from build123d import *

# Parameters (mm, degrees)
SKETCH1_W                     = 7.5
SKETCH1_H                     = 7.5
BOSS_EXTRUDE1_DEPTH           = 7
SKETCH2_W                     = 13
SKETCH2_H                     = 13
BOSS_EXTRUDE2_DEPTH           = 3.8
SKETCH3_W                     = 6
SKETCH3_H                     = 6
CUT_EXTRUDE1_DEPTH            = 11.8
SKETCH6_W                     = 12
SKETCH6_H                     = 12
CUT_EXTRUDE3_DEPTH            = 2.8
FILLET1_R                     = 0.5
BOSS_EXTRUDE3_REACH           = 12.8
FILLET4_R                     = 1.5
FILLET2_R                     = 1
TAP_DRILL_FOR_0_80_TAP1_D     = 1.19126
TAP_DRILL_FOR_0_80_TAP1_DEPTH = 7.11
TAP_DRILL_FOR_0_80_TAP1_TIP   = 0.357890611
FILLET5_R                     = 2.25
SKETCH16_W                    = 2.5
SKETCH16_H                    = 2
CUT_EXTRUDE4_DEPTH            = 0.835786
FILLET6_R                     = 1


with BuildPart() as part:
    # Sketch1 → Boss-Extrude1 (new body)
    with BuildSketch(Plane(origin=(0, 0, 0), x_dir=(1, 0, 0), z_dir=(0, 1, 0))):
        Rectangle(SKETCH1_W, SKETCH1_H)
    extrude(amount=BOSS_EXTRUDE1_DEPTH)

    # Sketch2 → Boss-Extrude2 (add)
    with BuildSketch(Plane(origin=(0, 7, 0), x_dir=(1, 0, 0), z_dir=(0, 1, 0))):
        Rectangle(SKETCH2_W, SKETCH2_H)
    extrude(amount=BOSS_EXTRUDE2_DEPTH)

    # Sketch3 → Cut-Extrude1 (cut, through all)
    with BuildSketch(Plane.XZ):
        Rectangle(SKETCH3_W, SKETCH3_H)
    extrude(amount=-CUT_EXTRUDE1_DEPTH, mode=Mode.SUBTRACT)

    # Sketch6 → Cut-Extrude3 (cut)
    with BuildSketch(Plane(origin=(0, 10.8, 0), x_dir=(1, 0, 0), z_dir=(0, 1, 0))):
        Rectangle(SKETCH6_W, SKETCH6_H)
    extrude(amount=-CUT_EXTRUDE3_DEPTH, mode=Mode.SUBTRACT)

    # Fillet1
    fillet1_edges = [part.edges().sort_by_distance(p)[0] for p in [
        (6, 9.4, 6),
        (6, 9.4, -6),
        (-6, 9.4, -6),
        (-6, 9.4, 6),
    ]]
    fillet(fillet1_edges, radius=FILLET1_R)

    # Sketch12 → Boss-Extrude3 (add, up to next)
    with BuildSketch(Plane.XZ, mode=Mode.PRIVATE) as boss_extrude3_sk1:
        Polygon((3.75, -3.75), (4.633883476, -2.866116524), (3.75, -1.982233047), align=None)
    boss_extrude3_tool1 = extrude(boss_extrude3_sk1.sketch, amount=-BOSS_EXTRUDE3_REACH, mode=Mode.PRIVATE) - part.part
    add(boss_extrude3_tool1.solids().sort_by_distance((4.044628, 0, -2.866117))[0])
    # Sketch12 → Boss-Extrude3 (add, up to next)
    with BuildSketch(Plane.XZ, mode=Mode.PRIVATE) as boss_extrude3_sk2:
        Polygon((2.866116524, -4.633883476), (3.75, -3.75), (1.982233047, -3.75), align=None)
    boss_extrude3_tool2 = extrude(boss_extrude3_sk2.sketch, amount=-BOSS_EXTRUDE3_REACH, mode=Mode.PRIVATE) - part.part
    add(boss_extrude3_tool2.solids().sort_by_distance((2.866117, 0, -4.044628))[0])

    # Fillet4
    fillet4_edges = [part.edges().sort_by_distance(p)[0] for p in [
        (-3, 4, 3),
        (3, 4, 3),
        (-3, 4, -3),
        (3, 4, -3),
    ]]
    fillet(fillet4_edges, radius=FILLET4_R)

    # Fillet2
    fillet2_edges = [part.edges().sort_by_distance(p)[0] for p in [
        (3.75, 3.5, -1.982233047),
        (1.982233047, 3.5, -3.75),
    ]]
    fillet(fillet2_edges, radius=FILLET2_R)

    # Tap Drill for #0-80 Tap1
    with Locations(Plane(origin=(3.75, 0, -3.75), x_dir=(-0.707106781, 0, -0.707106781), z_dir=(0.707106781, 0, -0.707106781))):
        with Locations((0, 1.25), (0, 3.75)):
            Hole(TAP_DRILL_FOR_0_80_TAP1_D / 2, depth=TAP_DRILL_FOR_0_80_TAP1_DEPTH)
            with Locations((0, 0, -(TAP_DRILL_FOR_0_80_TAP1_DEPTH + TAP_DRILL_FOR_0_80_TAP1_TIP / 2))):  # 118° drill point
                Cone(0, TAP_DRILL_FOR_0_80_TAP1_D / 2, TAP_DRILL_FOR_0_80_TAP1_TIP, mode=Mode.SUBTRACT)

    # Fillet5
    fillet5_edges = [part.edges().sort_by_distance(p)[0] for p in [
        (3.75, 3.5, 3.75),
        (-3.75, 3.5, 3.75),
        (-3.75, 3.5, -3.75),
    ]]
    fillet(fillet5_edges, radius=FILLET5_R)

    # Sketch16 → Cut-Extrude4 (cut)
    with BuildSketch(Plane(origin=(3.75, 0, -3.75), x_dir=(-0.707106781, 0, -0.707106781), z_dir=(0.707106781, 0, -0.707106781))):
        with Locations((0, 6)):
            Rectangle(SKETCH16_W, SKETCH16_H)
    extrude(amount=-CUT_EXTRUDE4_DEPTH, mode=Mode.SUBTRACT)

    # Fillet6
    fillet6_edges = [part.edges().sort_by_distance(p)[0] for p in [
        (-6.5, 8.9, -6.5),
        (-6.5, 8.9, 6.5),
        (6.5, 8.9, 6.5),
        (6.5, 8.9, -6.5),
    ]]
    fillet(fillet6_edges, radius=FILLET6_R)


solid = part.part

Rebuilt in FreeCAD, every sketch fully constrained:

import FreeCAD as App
import Part
import Sketcher
from FreeCAD import Vector


def edges_at(feature, points):
    """Names of the edges that pass closest to the given points."""
    edges = feature.Shape.Edges
    near = lambda p: min(range(len(edges)), key=lambda i: edges[i].distToShape(Part.Vertex(*p))[0])
    return sorted({f"Edge{near(p) + 1}" for p in points})


def add_polygon(sketch, points):
    """Adds a closed chain of lines whose ends are joined by coincident constraints."""
    first, n = sketch.GeometryCount, len(points)
    for a, b in zip(points, points[1:] + points[:1]):
        sketch.addGeometry(Part.LineSegment(App.Vector(*a, 0), App.Vector(*b, 0)), False)
    for i in range(n):
        sketch.addConstraint(Sketcher.Constraint("Coincident", first + i, 2, first + (i + 1) % n, 1))

doc = App.newDocument("Part")
params = doc.addObject("Spreadsheet::Sheet", "Params")
for row, (alias, value) in enumerate([
    ("sketch1_width", "7.5 mm"),
    ("pad1_length", "7 mm"),
    ("sketch2_width", "13 mm"),
    ("pad2_length", "3.8 mm"),
    ("sketch3_width", "6 mm"),
    ("sketch4_width", "12 mm"),
    ("pocket2_length", "2.8 mm"),
    ("fillet_radius", "0.5 mm"),
    ("sketch5_length", "1.25 mm"),
    ("sketch6_length", "1.25 mm"),
    ("fillet2_radius", "1.5 mm"),
    ("fillet3_radius", "1 mm"),
    ("hole_diameter", "1.19126 mm"),
    ("hole_depth", "7.11 mm"),
    ("fillet4_radius", "2.25 mm"),
    ("sketch8_height", "2 mm"),
    ("sketch8_width", "2.5 mm"),
    ("pocket3_length", "0.835786 mm"),
    ("fillet5_radius", "1 mm"),
], start=1):
    params.set(f"A{row}", alias)
    params.set(f"B{row}", "=" + value)
    params.setAlias(f"B{row}", alias)

body = doc.addObject("PartDesign::Body", "Body")

sketch1 = doc.addObject("Sketcher::SketchObject", "Sketch")
body.addObject(sketch1)
sketch1.AttachmentSupport = (doc.XZ_Plane, [""])
sketch1.MapMode = "FlatFace"
add_polygon(sketch1, [(-3.75, -3.75), (-3.75, 3.75), (3.75, 3.75), (3.75, -3.75)])
sketch1.addConstraint([
    Sketcher.Constraint("Vertical", 0),
    Sketcher.Constraint("Horizontal", 1),
    Sketcher.Constraint("Vertical", 2),
    Sketcher.Constraint("Horizontal", 3),
    Sketcher.Constraint("Symmetric", 0, 2, 2, 2, -1, 1),
    Sketcher.Constraint("Equal", 3, 0),
    Sketcher.Constraint("DistanceX", 1, 1, 1, 2, 7.5),
])
sketch1.setExpression("Constraints[10]", "Params.sketch1_width")
pad1 = doc.addObject("PartDesign::Pad", "Pad")
body.addObject(pad1)
pad1.Profile = sketch1
pad1.setExpression("Length", "Params.pad1_length")
pad1.Reversed = True

sketch2 = doc.addObject("Sketcher::SketchObject", "Sketch001")
body.addObject(sketch2)
sketch2.AttachmentSupport = (doc.XZ_Plane, [""])
sketch2.MapMode = "FlatFace"
sketch2.AttachmentOffset = App.Placement(Vector(0, 0, -7), App.Rotation())
add_polygon(sketch2, [(-6.5, -6.5), (-6.5, 6.5), (6.5, 6.5), (6.5, -6.5)])
sketch2.addConstraint([
    Sketcher.Constraint("Vertical", 0),
    Sketcher.Constraint("Horizontal", 1),
    Sketcher.Constraint("Vertical", 2),
    Sketcher.Constraint("Horizontal", 3),
    Sketcher.Constraint("Symmetric", 0, 2, 2, 2, -1, 1),
    Sketcher.Constraint("Equal", 3, 0),
    Sketcher.Constraint("DistanceX", 1, 1, 1, 2, 13.0),
])
sketch2.setExpression("Constraints[10]", "Params.sketch2_width")
pad2 = doc.addObject("PartDesign::Pad", "Pad001")
body.addObject(pad2)
pad2.Profile = sketch2
pad2.setExpression("Length", "Params.pad2_length")
pad2.Reversed = True

sketch3 = doc.addObject("Sketcher::SketchObject", "Sketch002")
body.addObject(sketch3)
sketch3.AttachmentSupport = (doc.XZ_Plane, [""])
sketch3.MapMode = "FlatFace"
add_polygon(sketch3, [(-3, 3), (-3, -3), (3, -3), (3, 3)])
sketch3.addConstraint([
    Sketcher.Constraint("Vertical", 0),
    Sketcher.Constraint("Horizontal", 1),
    Sketcher.Constraint("Vertical", 2),
    Sketcher.Constraint("Horizontal", 3),
    Sketcher.Constraint("Symmetric", 0, 2, 2, 2, -1, 1),
    Sketcher.Constraint("Equal", 3, 0),
    Sketcher.Constraint("DistanceX", 1, 1, 1, 2, 6.0),
])
sketch3.setExpression("Constraints[10]", "Params.sketch3_width")
pocket1 = doc.addObject("PartDesign::Pocket", "Pocket")
body.addObject(pocket1)
pocket1.Profile = sketch3
pocket1.Type = "ThroughAll"

sketch4 = doc.addObject("Sketcher::SketchObject", "Sketch003")
body.addObject(sketch4)
sketch4.AttachmentSupport = (doc.XZ_Plane, [""])
sketch4.MapMode = "FlatFace"
sketch4.AttachmentOffset = App.Placement(Vector(0, 0, -10.8), App.Rotation())
add_polygon(sketch4, [(-6, -6), (-6, 6), (6, 6), (6, -6)])
sketch4.addConstraint([
    Sketcher.Constraint("Vertical", 0),
    Sketcher.Constraint("Horizontal", 1),
    Sketcher.Constraint("Vertical", 2),
    Sketcher.Constraint("Horizontal", 3),
    Sketcher.Constraint("Symmetric", 0, 2, 2, 2, -1, 1),
    Sketcher.Constraint("Equal", 3, 0),
    Sketcher.Constraint("DistanceX", 1, 1, 1, 2, 12.0),
])
sketch4.setExpression("Constraints[10]", "Params.sketch4_width")
pocket2 = doc.addObject("PartDesign::Pocket", "Pocket001")
body.addObject(pocket2)
pocket2.Profile = sketch4
pocket2.setExpression("Length", "Params.pocket2_length")
pocket2.Reversed = True
doc.recompute()

fillet = doc.addObject("PartDesign::Fillet", "Fillet")
body.addObject(fillet)
fillet.Base = (pocket2, edges_at(pocket2, [
    (6, 9.4, 6),
    (6, 9.4, -6),
    (-6, 9.4, -6),
    (-6, 9.4, 6),
]))
fillet.setExpression("Radius", "Params.fillet_radius")

sketch5 = doc.addObject("Sketcher::SketchObject", "Sketch004")
body.addObject(sketch5)
sketch5.AttachmentSupport = (doc.XZ_Plane, [""])
sketch5.MapMode = "FlatFace"
add_polygon(sketch5, [(3.75, -3.75), (4.633883, -2.866117), (3.75, -1.982233)])
sketch5.addConstraint([
    Sketcher.Constraint("Vertical", 2),
    Sketcher.Constraint("Perpendicular", 0, 1),
    Sketcher.Constraint("Equal", 0, 1),
    Sketcher.Constraint("Distance", 0, 1.25),
    Sketcher.Constraint("DistanceX", -1, 1, 1, 2, 3.75),
    Sketcher.Constraint("DistanceY", 2, 2, -1, 1, 3.75),
])
sketch5.setExpression("Constraints[6]", "Params.sketch5_length")
pad3 = doc.addObject("PartDesign::Pad", "Pad002")
body.addObject(pad3)
pad3.Profile = sketch5
pad3.Type = "UpToFirst"
pad3.Reversed = True

sketch6 = doc.addObject("Sketcher::SketchObject", "Sketch005")
body.addObject(sketch6)
sketch6.AttachmentSupport = (doc.XZ_Plane, [""])
sketch6.MapMode = "FlatFace"
add_polygon(sketch6, [(2.866117, -4.633883), (3.75, -3.75), (1.982233, -3.75)])
sketch6.addConstraint([
    Sketcher.Constraint("Horizontal", 1),
    Sketcher.Constraint("Perpendicular", 0, 2),
    Sketcher.Constraint("Equal", 0, 2),
    Sketcher.Constraint("Distance", 0, 1.25),
    Sketcher.Constraint("DistanceX", -1, 1, 0, 2, 3.75),
    Sketcher.Constraint("DistanceY", 0, 2, -1, 1, 3.75),
])
sketch6.setExpression("Constraints[6]", "Params.sketch6_length")
pad4 = doc.addObject("PartDesign::Pad", "Pad003")
body.addObject(pad4)
pad4.Profile = sketch6
pad4.Type = "UpToFirst"
pad4.Reversed = True
doc.recompute()

fillet2 = doc.addObject("PartDesign::Fillet", "Fillet001")
body.addObject(fillet2)
fillet2.Base = (pad4, edges_at(pad4, [
    (-3, 4, 3),
    (3, 4, 3),
    (-3, 4, -3),
    (3, 4, -3),
]))
fillet2.setExpression("Radius", "Params.fillet2_radius")
doc.recompute()

fillet3 = doc.addObject("PartDesign::Fillet", "Fillet002")
body.addObject(fillet3)
fillet3.Base = (fillet2, edges_at(fillet2, [(3.75, 3.5, -1.982), (1.982, 3.5, -3.75)]))
fillet3.setExpression("Radius", "Params.fillet3_radius")

sketch7 = doc.addObject("Sketcher::SketchObject", "Sketch006")
body.addObject(sketch7)
sketch7.Placement = App.Placement(Vector(3.75, 0, -3.75), App.Rotation(Vector(-0.707106781, 0, -0.707106781), Vector(0, 0.999999999, 0), Vector(0.707106781, 0, -0.707106781), "ZXY"))
sketch7.addGeometry([
    Part.Circle(Vector(0, 1.25, 0), Vector(0, 0, 1), 0.59563),
    Part.Circle(Vector(0, 3.75, 0), Vector(0, 0, 1), 0.59563),
], False)
sketch7.addConstraint([
    Sketcher.Constraint("Equal", 0, 1),
    Sketcher.Constraint("PointOnObject", 0, 3, -2),
    Sketcher.Constraint("PointOnObject", 1, 3, -2),
    Sketcher.Constraint("DistanceY", 0, 3, 1, 3, 2.5),
    Sketcher.Constraint("Diameter", 0, 1.19126),
    Sketcher.Constraint("DistanceY", -1, 1, 0, 3, 1.25),
])
doc.recompute()
hole = doc.addObject("PartDesign::Hole", "Hole")
body.addObject(hole)
hole.Profile = sketch7
hole.ThreadType = "None"
hole.setExpression("Diameter", "Params.hole_diameter")
hole.DepthType = "Dimension"
hole.setExpression("Depth", "Params.hole_depth")
hole.DrillPoint = "Angled"
hole.DrillPointAngle = 118
doc.recompute()

fillet4 = doc.addObject("PartDesign::Fillet", "Fillet003")
body.addObject(fillet4)
fillet4.Base = (hole, edges_at(hole, [(3.75, 3.5, 3.75), (-3.75, 3.5, 3.75), (-3.75, 3.5, -3.75)]))
fillet4.setExpression("Radius", "Params.fillet4_radius")

sketch8 = doc.addObject("Sketcher::SketchObject", "Sketch007")
body.addObject(sketch8)
sketch8.Placement = App.Placement(Vector(3.75, 0, -3.75), App.Rotation(Vector(-0.707106781, 0, -0.707106781), Vector(0, 0.999999999, 0), Vector(0.707106781, 0, -0.707106781), "ZXY"))
add_polygon(sketch8, [(-1.25, 7), (-1.25, 5), (1.25, 5), (1.25, 7)])
sketch8.addConstraint([
    Sketcher.Constraint("Vertical", 0),
    Sketcher.Constraint("Horizontal", 1),
    Sketcher.Constraint("Vertical", 2),
    Sketcher.Constraint("Horizontal", 3),
    Sketcher.Constraint("DistanceY", 0, 2, 0, 1, 2.0),
    Sketcher.Constraint("DistanceX", 1, 1, 1, 2, 2.5),
    Sketcher.Constraint("DistanceY", -1, 1, 0, 2, 5.0),
    Sketcher.Constraint("DistanceX", 0, 2, -1, 1, 1.25),
])
sketch8.setExpression("Constraints[8]", "Params.sketch8_height")
sketch8.setExpression("Constraints[9]", "Params.sketch8_width")
pocket3 = doc.addObject("PartDesign::Pocket", "Pocket002")
body.addObject(pocket3)
pocket3.Profile = sketch8
pocket3.setExpression("Length", "Params.pocket3_length")
doc.recompute()

fillet5 = doc.addObject("PartDesign::Fillet", "Fillet004")
body.addObject(fillet5)
fillet5.Base = (pocket3, edges_at(pocket3, [
    (-6.5, 8.9, -6.5),
    (-6.5, 8.9, 6.5),
    (6.5, 8.9, 6.5),
    (6.5, 8.9, -6.5),
]))
fillet5.setExpression("Radius", "Params.fillet5_radius")

doc.recompute()
